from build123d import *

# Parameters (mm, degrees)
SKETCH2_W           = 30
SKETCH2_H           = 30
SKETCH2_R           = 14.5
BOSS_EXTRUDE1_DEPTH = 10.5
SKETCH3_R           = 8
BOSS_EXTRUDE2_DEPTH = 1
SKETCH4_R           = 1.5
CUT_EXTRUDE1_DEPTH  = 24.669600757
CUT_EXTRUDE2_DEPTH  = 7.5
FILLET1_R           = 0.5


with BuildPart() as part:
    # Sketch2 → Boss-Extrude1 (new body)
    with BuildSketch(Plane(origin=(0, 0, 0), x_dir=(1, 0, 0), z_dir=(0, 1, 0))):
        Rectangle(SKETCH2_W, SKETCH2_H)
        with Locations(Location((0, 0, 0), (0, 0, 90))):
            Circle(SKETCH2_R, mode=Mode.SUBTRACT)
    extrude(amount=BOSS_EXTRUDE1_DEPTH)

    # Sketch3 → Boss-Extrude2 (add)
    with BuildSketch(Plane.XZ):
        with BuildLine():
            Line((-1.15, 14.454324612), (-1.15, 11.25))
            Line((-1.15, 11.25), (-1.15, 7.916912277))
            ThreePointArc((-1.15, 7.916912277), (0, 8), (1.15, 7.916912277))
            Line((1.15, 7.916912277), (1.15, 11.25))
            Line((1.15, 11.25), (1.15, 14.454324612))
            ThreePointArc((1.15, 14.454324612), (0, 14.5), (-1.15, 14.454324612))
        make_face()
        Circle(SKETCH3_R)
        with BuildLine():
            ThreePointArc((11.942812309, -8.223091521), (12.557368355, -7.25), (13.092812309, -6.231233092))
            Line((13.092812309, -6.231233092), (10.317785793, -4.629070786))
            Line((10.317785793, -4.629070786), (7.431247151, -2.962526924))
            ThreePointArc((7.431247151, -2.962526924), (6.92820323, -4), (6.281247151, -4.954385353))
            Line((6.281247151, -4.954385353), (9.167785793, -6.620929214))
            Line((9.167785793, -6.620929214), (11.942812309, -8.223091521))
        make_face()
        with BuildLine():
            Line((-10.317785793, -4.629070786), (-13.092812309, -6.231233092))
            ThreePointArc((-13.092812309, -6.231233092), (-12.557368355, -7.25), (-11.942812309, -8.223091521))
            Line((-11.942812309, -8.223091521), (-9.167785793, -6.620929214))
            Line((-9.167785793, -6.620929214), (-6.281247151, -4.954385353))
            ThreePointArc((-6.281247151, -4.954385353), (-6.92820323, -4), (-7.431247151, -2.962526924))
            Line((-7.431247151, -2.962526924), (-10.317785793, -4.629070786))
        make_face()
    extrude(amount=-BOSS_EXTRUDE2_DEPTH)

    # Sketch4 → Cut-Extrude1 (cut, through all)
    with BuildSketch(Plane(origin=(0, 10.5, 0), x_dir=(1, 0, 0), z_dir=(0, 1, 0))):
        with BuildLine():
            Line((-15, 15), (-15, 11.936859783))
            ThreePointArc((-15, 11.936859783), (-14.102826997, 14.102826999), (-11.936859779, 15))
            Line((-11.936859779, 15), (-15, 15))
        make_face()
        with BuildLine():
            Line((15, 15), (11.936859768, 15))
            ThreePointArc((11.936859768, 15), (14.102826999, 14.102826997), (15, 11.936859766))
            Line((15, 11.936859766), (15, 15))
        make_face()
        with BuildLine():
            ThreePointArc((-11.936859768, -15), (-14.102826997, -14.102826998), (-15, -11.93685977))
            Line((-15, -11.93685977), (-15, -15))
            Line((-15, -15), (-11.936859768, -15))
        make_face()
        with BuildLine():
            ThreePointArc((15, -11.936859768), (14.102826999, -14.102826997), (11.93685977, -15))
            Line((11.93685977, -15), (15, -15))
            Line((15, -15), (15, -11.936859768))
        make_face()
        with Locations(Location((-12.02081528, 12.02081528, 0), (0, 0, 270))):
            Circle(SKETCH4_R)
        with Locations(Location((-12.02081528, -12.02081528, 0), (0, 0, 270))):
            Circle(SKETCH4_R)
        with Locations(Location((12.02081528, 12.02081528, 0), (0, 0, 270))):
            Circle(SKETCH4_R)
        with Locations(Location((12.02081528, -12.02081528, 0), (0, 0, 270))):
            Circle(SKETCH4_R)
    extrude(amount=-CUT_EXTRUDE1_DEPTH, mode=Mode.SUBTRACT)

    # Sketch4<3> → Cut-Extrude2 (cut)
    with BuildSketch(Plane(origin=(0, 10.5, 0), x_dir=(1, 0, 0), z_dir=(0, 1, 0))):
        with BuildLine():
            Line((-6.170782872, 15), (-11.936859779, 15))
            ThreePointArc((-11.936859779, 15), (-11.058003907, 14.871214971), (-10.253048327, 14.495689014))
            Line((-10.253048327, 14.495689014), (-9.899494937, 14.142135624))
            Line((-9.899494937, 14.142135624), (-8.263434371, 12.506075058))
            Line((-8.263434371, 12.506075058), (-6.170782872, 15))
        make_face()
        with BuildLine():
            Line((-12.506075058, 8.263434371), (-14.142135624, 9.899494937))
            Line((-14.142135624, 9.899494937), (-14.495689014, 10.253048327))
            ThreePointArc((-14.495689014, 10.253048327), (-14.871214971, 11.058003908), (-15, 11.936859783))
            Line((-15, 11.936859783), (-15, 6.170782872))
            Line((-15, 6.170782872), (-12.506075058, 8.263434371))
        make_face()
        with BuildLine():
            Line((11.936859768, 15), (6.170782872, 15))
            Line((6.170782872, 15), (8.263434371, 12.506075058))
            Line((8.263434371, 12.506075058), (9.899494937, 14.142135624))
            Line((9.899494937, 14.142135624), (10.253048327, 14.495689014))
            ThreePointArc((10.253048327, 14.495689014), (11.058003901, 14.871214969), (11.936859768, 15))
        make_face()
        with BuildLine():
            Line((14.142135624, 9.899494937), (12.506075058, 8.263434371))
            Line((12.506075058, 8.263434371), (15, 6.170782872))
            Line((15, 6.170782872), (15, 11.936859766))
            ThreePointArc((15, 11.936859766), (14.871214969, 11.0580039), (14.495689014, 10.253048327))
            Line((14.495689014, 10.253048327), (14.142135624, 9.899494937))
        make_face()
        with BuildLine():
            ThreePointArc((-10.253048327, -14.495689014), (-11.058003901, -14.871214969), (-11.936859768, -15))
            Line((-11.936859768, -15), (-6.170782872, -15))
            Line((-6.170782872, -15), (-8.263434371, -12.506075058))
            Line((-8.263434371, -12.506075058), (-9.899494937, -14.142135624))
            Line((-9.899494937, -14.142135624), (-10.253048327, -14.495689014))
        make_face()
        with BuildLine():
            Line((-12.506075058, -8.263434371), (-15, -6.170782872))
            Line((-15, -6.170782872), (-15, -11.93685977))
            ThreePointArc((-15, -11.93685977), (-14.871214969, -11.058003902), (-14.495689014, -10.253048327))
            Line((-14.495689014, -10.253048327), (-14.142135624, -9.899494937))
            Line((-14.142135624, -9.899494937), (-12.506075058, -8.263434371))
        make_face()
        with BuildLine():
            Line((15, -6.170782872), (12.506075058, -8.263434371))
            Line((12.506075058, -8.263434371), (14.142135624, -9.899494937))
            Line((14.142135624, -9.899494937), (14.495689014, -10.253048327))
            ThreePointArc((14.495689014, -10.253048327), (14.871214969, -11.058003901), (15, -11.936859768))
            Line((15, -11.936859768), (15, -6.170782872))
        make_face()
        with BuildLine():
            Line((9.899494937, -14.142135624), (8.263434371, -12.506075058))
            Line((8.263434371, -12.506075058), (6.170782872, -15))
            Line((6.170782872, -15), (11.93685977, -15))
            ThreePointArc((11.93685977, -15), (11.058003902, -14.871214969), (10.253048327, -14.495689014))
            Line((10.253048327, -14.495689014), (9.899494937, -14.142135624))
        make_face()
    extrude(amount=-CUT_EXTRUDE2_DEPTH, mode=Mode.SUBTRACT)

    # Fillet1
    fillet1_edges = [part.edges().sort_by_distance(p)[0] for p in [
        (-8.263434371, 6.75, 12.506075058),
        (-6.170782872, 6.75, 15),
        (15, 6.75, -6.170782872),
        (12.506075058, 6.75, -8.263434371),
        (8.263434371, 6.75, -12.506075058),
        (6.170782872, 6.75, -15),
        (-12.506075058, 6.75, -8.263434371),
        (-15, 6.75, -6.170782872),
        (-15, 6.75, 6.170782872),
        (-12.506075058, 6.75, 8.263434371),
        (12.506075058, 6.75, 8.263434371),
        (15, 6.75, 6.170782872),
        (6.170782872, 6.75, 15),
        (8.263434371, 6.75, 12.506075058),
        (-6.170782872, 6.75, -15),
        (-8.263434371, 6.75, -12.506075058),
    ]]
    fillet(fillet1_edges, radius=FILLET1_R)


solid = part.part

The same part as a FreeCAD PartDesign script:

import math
import FreeCAD as App
import Part
import Sketcher

V = App.Vector
Q = App.Units.Quantity


def edges_at(feature, points):
    """Names of the edges that pass closest to the given points."""
    edges = feature.Shape.Edges
    near = lambda p: min(range(len(edges)), key=lambda i: edges[i].distToShape(Part.Vertex(*p))[0])
    return sorted({f"Edge{near(p) + 1}" for p in points})


def add_polygon(sketch, points):
    """Adds a closed chain of lines whose ends are joined by coincident constraints."""
    first, n = sketch.GeometryCount, len(points)
    for a, b in zip(points, points[1:] + points[:1]):
        sketch.addGeometry(Part.LineSegment(App.Vector(*a, 0), App.Vector(*b, 0)), False)
    for i in range(n):
        sketch.addConstraint(Sketcher.Constraint("Coincident", first + i, 2, first + (i + 1) % n, 1))

doc = App.newDocument("Part")
body = doc.addObject("PartDesign::Body", "Body")

# Sketch on XZ plane
sketch1 = body.newObject("Sketcher::SketchObject", "Sketch")
sketch1.AttachmentSupport = (doc.getObject("XZ_Plane"), [""])
sketch1.MapMode = "FlatFace"
add_polygon(sketch1, [(-15, -15), (-15, 15), (15, 15), (15, -15)])  # lines 0-3
sketch1.addGeometry(Part.Circle(V(0, 0, 0), V(0, 0, 1), 14), False)  # 4
sketch1.addConstraint([
    Sketcher.Constraint("Vertical", 0),
    Sketcher.Constraint("Horizontal", 1),
    Sketcher.Constraint("Vertical", 2),
    Sketcher.Constraint("Horizontal", 3),
    Sketcher.Constraint("Coincident", 4, 3, -1, 1),
    Sketcher.Constraint("Symmetric", 0, 2, 2, 2, -1, 1),
    Sketcher.Constraint("Equal", 3, 0),
    Sketcher.Constraint("Diameter", 4, 29.0),
    Sketcher.Constraint("DistanceX", 1, 1, 1, 2, 30.0),
])
pad1 = body.newObject("PartDesign::Pad", "Pad")
pad1.Profile = sketch1
pad1.Length = 10.5
pad1.Reversed = True

# Sketch on XZ plane
sketch2 = body.newObject("Sketcher::SketchObject", "Sketch001")
sketch2.AttachmentSupport = (doc.getObject("XZ_Plane"), [""])
sketch2.MapMode = "FlatFace"
sketch2.addGeometry([
    Part.LineSegment(V(-1.1, 14.5, 0), V(-1.1, 7.9, 0)),  # 0
    Part.ArcOfCircle(Part.Circle(V(0, 0, 0), V(0, 0, 1), 8), math.radians(98), math.radians(202)),  # 1
    Part.LineSegment(V(-7.4, -3, 0), V(-10.3, -4.6, 0)),  # 2
    Part.LineSegment(V(-10.3, -4.6, 0), V(-13.1, -6.2, 0)),  # 3
    Part.ArcOfCircle(Part.Circle(V(0, 0, 0), V(0, 0, 1), 14.5), math.radians(-154.55), math.radians(-145.45)),  # 4
    Part.LineSegment(V(-11.9, -8.2, 0), V(-9.2, -6.6, 0)),  # 5
    Part.LineSegment(V(-9.2, -6.6, 0), V(-6.3, -5, 0)),  # 6
    Part.ArcOfCircle(Part.Circle(V(0, 0, 0), V(0, 0, 1), 8), math.radians(-142), math.radians(-38)),  # 7
    Part.LineSegment(V(6.3, -5, 0), V(9.2, -6.6, 0)),  # 8
    Part.LineSegment(V(9.2, -6.6, 0), V(11.9, -8.2, 0)),  # 9
    Part.ArcOfCircle(Part.Circle(V(0, 0, 0), V(0, 0, 1), 14.5), math.radians(-34.55), math.radians(-25.45)),  # 10
    Part.LineSegment(V(13.1, -6.2, 0), V(10.3, -4.6, 0)),  # 11
    Part.LineSegment(V(10.3, -4.6, 0), V(7.4, -3, 0)),  # 12
    Part.ArcOfCircle(Part.Circle(V(0, 0, 0), V(0, 0, 1), 8), math.radians(-22), math.radians(82)),  # 13
    Part.LineSegment(V(1.1, 7.9, 0), V(1.1, 14.5, 0)),  # 14
    Part.ArcOfCircle(Part.Circle(V(0, 0, 0), V(0, 0, 1), 14.5), math.radians(85.45), math.radians(94.55)),  # 15
], False)
sketch2.addConstraint([
    Sketcher.Constraint("Coincident", 0, 2, 1, 1),
    Sketcher.Constraint("Coincident", 1, 2, 2, 1),
    Sketcher.Constraint("Coincident", 2, 2, 3, 1),
    Sketcher.Constraint("Coincident", 3, 2, 4, 1),
    Sketcher.Constraint("Coincident", 4, 2, 5, 1),
    Sketcher.Constraint("Coincident", 5, 2, 6, 1),
    Sketcher.Constraint("Coincident", 6, 2, 7, 1),
    Sketcher.Constraint("Coincident", 7, 2, 8, 1),
    Sketcher.Constraint("Coincident", 8, 2, 9, 1),
    Sketcher.Constraint("Coincident", 9, 2, 10, 1),
    Sketcher.Constraint("Coincident", 10, 2, 11, 1),
    Sketcher.Constraint("Coincident", 11, 2, 12, 1),
    Sketcher.Constraint("Coincident", 12, 2, 13, 1),
    Sketcher.Constraint("Coincident", 13, 2, 14, 1),
    Sketcher.Constraint("Coincident", 14, 2, 15, 1),
    Sketcher.Constraint("Coincident", 15, 2, 0, 1),
    Sketcher.Constraint("Vertical", 0),
    Sketcher.Constraint("Vertical", 14),
    Sketcher.Constraint("Coincident", 1, 3, -1, 1),
    Sketcher.Constraint("Coincident", 4, 3, -1, 1),
    Sketcher.Constraint("Coincident", 7, 3, -1, 1),
    Sketcher.Constraint("Coincident", 10, 3, -1, 1),
    Sketcher.Constraint("Coincident", 13, 3, -1, 1),
    Sketcher.Constraint("Coincident", 15, 3, -1, 1),
    Sketcher.Constraint("Equal", 1, 7),
    Sketcher.Constraint("Equal", 4, 10),
    Sketcher.Constraint("Equal", 7, 13),
    Sketcher.Constraint("Equal", 10, 15),
    Sketcher.Constraint("Symmetric", 5, 2, 8, 2, -2),
    Sketcher.Constraint("Symmetric", 2, 2, 11, 2, -2),
    Sketcher.Constraint("Parallel", 2, 3),
    Sketcher.Constraint("Parallel", 3, 5),
    Sketcher.Constraint("Parallel", 5, 6),
    Sketcher.Constraint("Parallel", 8, 9),
    Sketcher.Constraint("Parallel", 9, 11),
    Sketcher.Constraint("Parallel", 11, 12),
    Sketcher.Constraint("Horizontal", 6, 2, 7, 2),
    Sketcher.Constraint("Horizontal", 0, 2, 13, 2),
    Sketcher.Constraint("Equal", 3, 5),
    Sketcher.Constraint("Equal", 2, 6),
    Sketcher.Constraint("Radius", 1, 8.0),
    Sketcher.Constraint("Radius", 4, 14.5),
    Sketcher.Constraint("Angle", 2, Q("-150 deg")),
    Sketcher.Constraint("DistanceX", 0, 2, 13, 2, 2.3),
    Sketcher.Constraint("DistanceX", 3, 2, 4, 2, 1.15),
    Sketcher.Constraint("DistanceY", 2, 2, -1, 1, 4.629071),
])
pad2 = body.newObject("PartDesign::Pad", "Pad001")
pad2.Profile = sketch2
pad2.Length = 1
pad2.Reversed = True

# Sketch on XZ plane
sketch3 = body.newObject("Sketcher::SketchObject", "Sketch002")
sketch3.AttachmentSupport = (doc.getObject("XZ_Plane"), [""])
sketch3.MapMode = "FlatFace"
sketch3.AttachmentOffset = App.Placement(V(0, 0, -10.5), App.Rotation())
sketch3.addGeometry([
    Part.LineSegment(V(-15, -15, 0), V(-15, -11.9, 0)),  # 0
    Part.ArcOfCircle(Part.Circle(V(-11.9, -11.9, 0), V(0, 0, 1), 3.1), math.radians(-180), math.radians(-90)),  # 1
    Part.LineSegment(V(-11.9, -15, 0), V(-15, -15, 0)),  # 2
    Part.LineSegment(V(15, -15, 0), V(11.9, -15, 0)),  # 3
    Part.ArcOfCircle(Part.Circle(V(11.9, -11.9, 0), V(0, 0, 1), 3.1), math.radians(-90), math.radians(0)),  # 4
    Part.LineSegment(V(15, -11.9, 0), V(15, -15, 0)),  # 5
    Part.ArcOfCircle(Part.Circle(V(-11.9, 11.9, 0), V(0, 0, 1), 3.1), math.radians(90), math.radians(180)),  # 6
    Part.LineSegment(V(-15, 11.9, 0), V(-15, 15, 0)),  # 7
    Part.LineSegment(V(-15, 15, 0), V(-11.9, 15, 0)),  # 8
    Part.ArcOfCircle(Part.Circle(V(11.9, 11.9, 0), V(0, 0, 1), 3.1), math.radians(0), math.radians(90)),  # 9
    Part.LineSegment(V(11.9, 15, 0), V(15, 15, 0)),  # 10
    Part.LineSegment(V(15, 15, 0), V(15, 11.9, 0)),  # 11
    Part.Circle(V(-12, -12, 0), V(0, 0, 1), 1.5),  # 12
    Part.Circle(V(-12, 12, 0), V(0, 0, 1), 1.5),  # 13
    Part.Circle(V(12, -12, 0), V(0, 0, 1), 1.5),  # 14
    Part.Circle(V(12, 12, 0), V(0, 0, 1), 1.5),  # 15
], False)
sketch3.addConstraint([
    Sketcher.Constraint("Tangent", 0, 2, 1, 1),
    Sketcher.Constraint("Tangent", 1, 2, 2, 1),
    Sketcher.Constraint("Coincident", 2, 2, 0, 1),
    Sketcher.Constraint("Tangent", 3, 2, 4, 1),
    Sketcher.Constraint("Tangent", 4, 2, 5, 1),
    Sketcher.Constraint("Coincident", 5, 2, 3, 1),
    Sketcher.Constraint("Tangent", 6, 2, 7, 1),
    Sketcher.Constraint("Coincident", 7, 2, 8, 1),
    Sketcher.Constraint("Tangent", 8, 2, 6, 1),
    Sketcher.Constraint("Tangent", 9, 2, 10, 1),
    Sketcher.Constraint("Coincident", 10, 2, 11, 1),
    Sketcher.Constraint("Tangent", 11, 2, 9, 1),
    Sketcher.Constraint("Vertical", 0),
    Sketcher.Constraint("Horizontal", 2),
    Sketcher.Constraint("Horizontal", 3),
    Sketcher.Constraint("Vertical", 5),
    Sketcher.Constraint("Vertical", 7),
    Sketcher.Constraint("Horizontal", 8),
    Sketcher.Constraint("Horizontal", 10),
    Sketcher.Constraint("Vertical", 11),
    Sketcher.Constraint("Equal", 1, 4),
    Sketcher.Constraint("Equal", 4, 6),
    Sketcher.Constraint("Equal", 6, 9),
    Sketcher.Constraint("Equal", 12, 13),
    Sketcher.Constraint("Equal", 13, 14),
    Sketcher.Constraint("Equal", 14, 15),
    Sketcher.Constraint("Symmetric", 4, 3, 6, 3, -1, 1),
    Sketcher.Constraint("Symmetric", 1, 3, 9, 3, -1, 1),
    Sketcher.Constraint("Symmetric", 13, 3, 14, 3, -1, 1),
    Sketcher.Constraint("Symmetric", 12, 3, 15, 3, -1, 1),
    Sketcher.Constraint("Symmetric", 1, 3, 4, 3, -2),
    Sketcher.Constraint("Symmetric", 12, 3, 14, 3, -2),
    Sketcher.Constraint("Diameter", 12, 3.0),
    Sketcher.Constraint("DistanceX", 0, 2, -1, 1, 15.0),
    Sketcher.Constraint("DistanceY", 1, 2, -1, 1, 15.0),
    Sketcher.Constraint("Radius", 1, 3.06314),
    Sketcher.Constraint("DistanceY", 12, 3, 13, 3, 24.041631),
    Sketcher.Constraint("DistanceX", 12, 3, 14, 3, 24.041631),
])
pocket1 = body.newObject("PartDesign::Pocket", "Pocket")
pocket1.Profile = sketch3
pocket1.Type = "ThroughAll"
pocket1.Reversed = True

# Sketch on XZ plane
sketch4 = body.newObject("Sketcher::SketchObject", "Sketch003")
sketch4.AttachmentSupport = (doc.getObject("XZ_Plane"), [""])
sketch4.MapMode = "FlatFace"
sketch4.AttachmentOffset = App.Placement(V(0, 0, -10.5), App.Rotation())
sketch4.addGeometry([
    Part.LineSegment(V(-6.2, -15, 0), V(-11.9, -15, 0)),  # 0
    Part.ArcOfCircle(Part.Circle(V(-11.9, -11.9, 0), V(0, 0, 1), 3.1), math.radians(-90), math.radians(-57)),  # 1
    Part.LineSegment(V(-10.3, -14.5, 0), V(-8.3, -12.5, 0)),  # 2
    Part.LineSegment(V(-8.3, -12.5, 0), V(-6.2, -15, 0)),  # 3
    Part.LineSegment(V(-12.5, -8.3, 0), V(-14.5, -10.3, 0)),  # 4
    Part.ArcOfCircle(Part.Circle(V(-11.9, -11.9, 0), V(0, 0, 1), 3.1), math.radians(147), math.radians(180)),  # 5
    Part.LineSegment(V(-15, -11.9, 0), V(-15, -6.2, 0)),  # 6
    Part.LineSegment(V(-15, -6.2, 0), V(-12.5, -8.3, 0)),  # 7
    Part.LineSegment(V(11.9, -15, 0), V(6.2, -15, 0)),  # 8
    Part.LineSegment(V(6.2, -15, 0), V(8.3, -12.5, 0)),  # 9
    Part.LineSegment(V(8.3, -12.5, 0), V(10.3, -14.5, 0)),  # 10
    Part.ArcOfCircle(Part.Circle(V(11.9, -11.9, 0), V(0, 0, 1), 3.1), math.radians(-123), math.radians(-90)),  # 11
    Part.LineSegment(V(12.5, -8.3, 0), V(15, -6.2, 0)),  # 12
    Part.LineSegment(V(15, -6.2, 0), V(15, -11.9, 0)),  # 13
    Part.ArcOfCircle(Part.Circle(V(11.9, -11.9, 0), V(0, 0, 1), 3.1), math.radians(0), math.radians(33)),  # 14
    Part.LineSegment(V(14.5, -10.3, 0), V(12.5, -8.3, 0)),  # 15
    Part.ArcOfCircle(Part.Circle(V(-11.9, 11.9, 0), V(0, 0, 1), 3.1), math.radians(57), math.radians(90)),  # 16
    Part.LineSegment(V(-11.9, 15, 0), V(-6.2, 15, 0)),  # 17
    Part.LineSegment(V(-6.2, 15, 0), V(-8.3, 12.5, 0)),  # 18
    Part.LineSegment(V(-8.3, 12.5, 0), V(-10.3, 14.5, 0)),  # 19
    Part.LineSegment(V(-12.5, 8.3, 0), V(-15, 6.2, 0)),  # 20
    Part.LineSegment(V(-15, 6.2, 0), V(-15, 11.9, 0)),  # 21
    Part.ArcOfCircle(Part.Circle(V(-11.9, 11.9, 0), V(0, 0, 1), 3.1), math.radians(180), math.radians(213)),  # 22
    Part.LineSegment(V(-14.5, 10.3, 0), V(-12.5, 8.3, 0)),  # 23
    Part.LineSegment(V(15, 6.2, 0), V(12.5, 8.3, 0)),  # 24
    Part.LineSegment(V(12.5, 8.3, 0), V(14.5, 10.3, 0)),  # 25
    Part.ArcOfCircle(Part.Circle(V(11.9, 11.9, 0), V(0, 0, 1), 3.1), math.radians(-33), math.radians(0)),  # 26
    Part.LineSegment(V(15, 11.9, 0), V(15, 6.2, 0)),  # 27
    Part.LineSegment(V(8.3, 12.5, 0), V(6.2, 15, 0)),  # 28
    Part.LineSegment(V(6.2, 15, 0), V(11.9, 15, 0)),  # 29
    Part.ArcOfCircle(Part.Circle(V(11.9, 11.9, 0), V(0, 0, 1), 3.1), math.radians(90), math.radians(123)),  # 30
    Part.LineSegment(V(10.3, 14.5, 0), V(8.3, 12.5, 0)),  # 31
], False)
sketch4.addConstraint([
    Sketcher.Constraint("Tangent", 0, 2, 1, 1),
    Sketcher.Constraint("Coincident", 1, 2, 2, 1),
    Sketcher.Constraint("Coincident", 2, 2, 3, 1),
    Sketcher.Constraint("Coincident", 3, 2, 0, 1),
    Sketcher.Constraint("Coincident", 4, 2, 5, 1),
    Sketcher.Constraint("Tangent", 5, 2, 6, 1),
    Sketcher.Constraint("Coincident", 6, 2, 7, 1),
    Sketcher.Constraint("Coincident", 7, 2, 4, 1),
    Sketcher.Constraint("Coincident", 8, 2, 9, 1),
    Sketcher.Constraint("Coincident", 9, 2, 10, 1),
    Sketcher.Constraint("Coincident", 10, 2, 11, 1),
    Sketcher.Constraint("Tangent", 11, 2, 8, 1),
    Sketcher.Constraint("Coincident", 12, 2, 13, 1),
    Sketcher.Constraint("Tangent", 13, 2, 14, 1),
    Sketcher.Constraint("Coincident", 14, 2, 15, 1),
    Sketcher.Constraint("Coincident", 15, 2, 12, 1),
    Sketcher.Constraint("Tangent", 16, 2, 17, 1),
    Sketcher.Constraint("Coincident", 17, 2, 18, 1),
    Sketcher.Constraint("Coincident", 18, 2, 19, 1),
    Sketcher.Constraint("Coincident", 19, 2, 16, 1),
    Sketcher.Constraint("Coincident", 20, 2, 21, 1),
    Sketcher.Constraint("Tangent", 21, 2, 22, 1),
    Sketcher.Constraint("Coincident", 22, 2, 23, 1),
    Sketcher.Constraint("Coincident", 23, 2, 20, 1),
    Sketcher.Constraint("Coincident", 24, 2, 25, 1),
    Sketcher.Constraint("Coincident", 25, 2, 26, 1),
    Sketcher.Constraint("Tangent", 26, 2, 27, 1),
    Sketcher.Constraint("Coincident", 27, 2, 24, 1),
    Sketcher.Constraint("Coincident", 28, 2, 29, 1),
    Sketcher.Constraint("Tangent", 29, 2, 30, 1),
    Sketcher.Constraint("Coincident", 30, 2, 31, 1),
    Sketcher.Constraint("Coincident", 31, 2, 28, 1),
    Sketcher.Constraint("Horizontal", 0),
    Sketcher.Constraint("Vertical", 6),
    Sketcher.Constraint("Horizontal", 8),
    Sketcher.Constraint("Vertical", 13),
    Sketcher.Constraint("Horizontal", 17),
    Sketcher.Constraint("Vertical", 21),
    Sketcher.Constraint("Vertical", 27),
    Sketcher.Constraint("Horizontal", 29),
    Sketcher.Constraint("Coincident", 5, 3, 1, 3),
    Sketcher.Constraint("Coincident", 14, 3, 11, 3),
    Sketcher.Constraint("Coincident", 22, 3, 16, 3),
    Sketcher.Constraint("Coincident", 30, 3, 26, 3),
    Sketcher.Constraint("Equal", 1, 5),
    Sketcher.Constraint("Equal", 5, 11),
    Sketcher.Constraint("Equal", 11, 14),
    Sketcher.Constraint("Equal", 14, 16),
    Sketcher.Constraint("Equal", 16, 22),
    Sketcher.Constraint("Equal", 22, 26),
    Sketcher.Constraint("Equal", 26, 30),
    Sketcher.Constraint("Symmetric", 11, 3, 16, 3, -1, 1),
    Sketcher.Constraint("Symmetric", 1, 3, 26, 3, -1, 1),
    Sketcher.Constraint("Symmetric", 9, 2, 18, 2, -1, 1),
    Sketcher.Constraint("Symmetric", 15, 2, 23, 2, -1, 1),
    Sketcher.Constraint("Symmetric", 7, 2, 24, 2, -1, 1),
    Sketcher.Constraint("Symmetric", 2, 2, 31, 2, -1, 1),
    Sketcher.Constraint("Symmetric", 1, 3, 11, 3, -2),
    Sketcher.Constraint("Symmetric", 2, 2, 9, 2, -2),
    Sketcher.Constraint("Symmetric", 7, 2, 15, 2, -2),
    Sketcher.Constraint("Parallel", 2, 4),
    Sketcher.Constraint("Perpendicular", 7, 9),
    Sketcher.Constraint("Perpendicular", 4, 10),
    Sketcher.Constraint("Perpendicular", 3, 12),
    Sketcher.Constraint("Parallel", 10, 15),
    Sketcher.Constraint("Parallel", 9, 18),
    Sketcher.Constraint("Parallel", 15, 19),
    Sketcher.Constraint("Parallel", 12, 20),
    Sketcher.Constraint("Parallel", 19, 23),
    Sketcher.Constraint("Perpendicular", 18, 24),
    Sketcher.Constraint("Perpendicular", 23, 25),
    Sketcher.Constraint("Perpendicular", 20, 28),
    Sketcher.Constraint("Parallel", 25, 31),
    Sketcher.Constraint("Horizontal", 1, 2, 10, 2),
    Sketcher.Constraint("Horizontal", 6, 2, 12, 2),
    Sketcher.Constraint("Equal", 29, 6),
    Sketcher.Constraint("Equal", 2, 4),
    Sketcher.Constraint("Angle", 3, Q("-50 deg")),
    Sketcher.Constraint("DistanceY", 0, 2, -1, 1, 15.0),
    Sketcher.Constraint("DistanceX", 5, 2, -1, 1, 15.0),
    Sketcher.Constraint("Radius", 1, 3.06314),
    Sketcher.Constraint("Distance", 2, 2.813739),
    Sketcher.Constraint("DistanceX", 0, 2, 0, 1, 5.766077),
])
pocket2 = body.newObject("PartDesign::Pocket", "Pocket001")
pocket2.Profile = sketch4
pocket2.Length = 7.5
pocket2.Reversed = True
doc.recompute()

fillet = body.newObject("PartDesign::Fillet", "Fillet")
fillet.Base = (pocket2, edges_at(pocket2, [
    (-8.263, 6.75, 12.506),
    (-6.171, 6.75, 15),
    (15, 6.75, -6.171),
    (12.506, 6.75, -8.263),
    (8.263, 6.75, -12.506),
    (6.171, 6.75, -15),
    (-12.506, 6.75, -8.263),
    (-15, 6.75, -6.171),
    (-15, 6.75, 6.171),
    (-12.506, 6.75, 8.263),
    (12.506, 6.75, 8.263),
    (15, 6.75, 6.171),
    (6.171, 6.75, 15),
    (8.263, 6.75, 12.506),
    (-6.171, 6.75, -15),
    (-8.263, 6.75, -12.506),
]))
fillet.Radius = 0.5

doc.recompute()
